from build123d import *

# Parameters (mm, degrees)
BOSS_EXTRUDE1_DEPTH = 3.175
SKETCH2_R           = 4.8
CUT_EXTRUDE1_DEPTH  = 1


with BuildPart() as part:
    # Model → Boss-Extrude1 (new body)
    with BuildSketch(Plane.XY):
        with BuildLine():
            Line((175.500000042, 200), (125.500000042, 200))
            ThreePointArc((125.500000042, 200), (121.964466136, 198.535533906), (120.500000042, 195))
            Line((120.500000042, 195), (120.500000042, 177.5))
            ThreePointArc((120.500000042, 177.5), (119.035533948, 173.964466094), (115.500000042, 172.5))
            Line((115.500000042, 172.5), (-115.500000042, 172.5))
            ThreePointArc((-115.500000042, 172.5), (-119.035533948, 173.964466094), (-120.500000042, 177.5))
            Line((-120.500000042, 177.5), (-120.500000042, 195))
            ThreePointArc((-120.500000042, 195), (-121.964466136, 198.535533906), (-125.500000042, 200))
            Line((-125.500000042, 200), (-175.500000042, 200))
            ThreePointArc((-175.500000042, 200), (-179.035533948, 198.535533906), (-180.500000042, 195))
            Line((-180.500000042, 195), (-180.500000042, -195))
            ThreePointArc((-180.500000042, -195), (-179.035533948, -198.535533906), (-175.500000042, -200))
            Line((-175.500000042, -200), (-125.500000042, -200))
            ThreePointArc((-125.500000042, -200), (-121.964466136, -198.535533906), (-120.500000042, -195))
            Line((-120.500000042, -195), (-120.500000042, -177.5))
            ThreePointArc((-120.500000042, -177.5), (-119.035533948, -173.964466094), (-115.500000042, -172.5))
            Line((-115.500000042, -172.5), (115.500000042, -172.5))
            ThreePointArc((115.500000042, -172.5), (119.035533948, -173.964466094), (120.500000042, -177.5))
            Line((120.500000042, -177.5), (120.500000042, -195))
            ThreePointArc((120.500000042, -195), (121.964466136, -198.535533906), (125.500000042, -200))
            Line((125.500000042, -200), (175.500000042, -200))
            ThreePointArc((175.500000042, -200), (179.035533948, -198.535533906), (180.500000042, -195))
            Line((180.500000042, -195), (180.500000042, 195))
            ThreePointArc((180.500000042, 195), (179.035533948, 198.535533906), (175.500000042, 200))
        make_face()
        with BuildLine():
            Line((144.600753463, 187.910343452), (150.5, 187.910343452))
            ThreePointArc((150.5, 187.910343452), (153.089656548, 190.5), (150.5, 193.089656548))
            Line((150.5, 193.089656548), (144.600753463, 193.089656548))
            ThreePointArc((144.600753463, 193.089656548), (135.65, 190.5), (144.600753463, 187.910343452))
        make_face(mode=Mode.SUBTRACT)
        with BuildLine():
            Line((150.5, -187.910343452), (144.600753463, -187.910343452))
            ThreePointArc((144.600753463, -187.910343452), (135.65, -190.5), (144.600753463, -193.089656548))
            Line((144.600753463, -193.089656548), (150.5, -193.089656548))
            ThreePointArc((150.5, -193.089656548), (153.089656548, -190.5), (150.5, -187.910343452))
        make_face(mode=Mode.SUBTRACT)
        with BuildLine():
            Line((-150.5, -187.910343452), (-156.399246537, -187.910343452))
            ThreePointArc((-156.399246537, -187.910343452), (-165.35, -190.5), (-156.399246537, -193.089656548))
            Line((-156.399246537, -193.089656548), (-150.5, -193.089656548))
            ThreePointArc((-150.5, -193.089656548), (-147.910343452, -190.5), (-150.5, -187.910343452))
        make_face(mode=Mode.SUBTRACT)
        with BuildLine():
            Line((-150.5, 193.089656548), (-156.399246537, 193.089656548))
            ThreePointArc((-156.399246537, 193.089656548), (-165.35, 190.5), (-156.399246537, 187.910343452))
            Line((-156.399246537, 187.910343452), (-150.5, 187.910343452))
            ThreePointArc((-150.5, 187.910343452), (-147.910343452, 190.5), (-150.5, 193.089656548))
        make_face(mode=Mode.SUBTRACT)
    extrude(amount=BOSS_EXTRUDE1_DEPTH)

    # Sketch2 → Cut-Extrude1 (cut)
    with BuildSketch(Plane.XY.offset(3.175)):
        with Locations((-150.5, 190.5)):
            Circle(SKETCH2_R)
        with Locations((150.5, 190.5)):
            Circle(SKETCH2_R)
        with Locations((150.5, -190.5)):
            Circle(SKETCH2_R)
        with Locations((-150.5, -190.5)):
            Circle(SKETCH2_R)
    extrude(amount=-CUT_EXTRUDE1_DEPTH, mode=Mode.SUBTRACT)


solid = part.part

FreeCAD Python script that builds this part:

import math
import FreeCAD as App
import Part
import Sketcher

V = App.Vector
Q = App.Units.Quantity

doc = App.newDocument("Part")
body = doc.addObject("PartDesign::Body", "Body")

# Sketch on XY plane
sketch1 = body.newObject("Sketcher::SketchObject", "Sketch")
sketch1.AttachmentSupport = (doc.getObject("XY_Plane"), [""])
sketch1.MapMode = "FlatFace"
sketch1.addGeometry(Part.LineSegment(V(175.5, 200, 0), V(125.5, 200, 0)), False)
sketch1.addGeometry(Part.ArcOfCircle(Part.Circle(V(125.5, 195, 0), V(0, 0, 1), 5), math.radians(90), math.radians(180)), False)
sketch1.addGeometry(Part.LineSegment(V(120.5, 195, 0), V(120.5, 177.5, 0)), False)
sketch1.addGeometry(Part.ArcOfCircle(Part.Circle(V(115.5, 177.5, 0), V(0, 0, 1), 5), math.radians(-90), math.radians(0)), False)
sketch1.addGeometry(Part.LineSegment(V(115.5, 172.5, 0), V(-115.5, 172.5, 0)), False)
sketch1.addGeometry(Part.ArcOfCircle(Part.Circle(V(-115.5, 177.5, 0), V(0, 0, 1), 5), math.radians(180), math.radians(270)), False)
sketch1.addGeometry(Part.LineSegment(V(-120.5, 177.5, 0), V(-120.5, 195, 0)), False)
sketch1.addGeometry(Part.ArcOfCircle(Part.Circle(V(-125.5, 195, 0), V(0, 0, 1), 5), math.radians(0), math.radians(90)), False)
sketch1.addGeometry(Part.LineSegment(V(-125.5, 200, 0), V(-175.5, 200, 0)), False)
sketch1.addGeometry(Part.ArcOfCircle(Part.Circle(V(-175.5, 195, 0), V(0, 0, 1), 5), math.radians(90), math.radians(180)), False)
sketch1.addGeometry(Part.LineSegment(V(-180.5, 195, 0), V(-180.5, -195, 0)), False)
sketch1.addGeometry(Part.ArcOfCircle(Part.Circle(V(-175.5, -195, 0), V(0, 0, 1), 5), math.radians(180), math.radians(270)), False)
sketch1.addGeometry(Part.LineSegment(V(-175.5, -200, 0), V(-125.5, -200, 0)), False)
sketch1.addGeometry(Part.ArcOfCircle(Part.Circle(V(-125.5, -195, 0), V(0, 0, 1), 5), math.radians(-90), math.radians(0)), False)
sketch1.addGeometry(Part.LineSegment(V(-120.5, -195, 0), V(-120.5, -177.5, 0)), False)
sketch1.addGeometry(Part.ArcOfCircle(Part.Circle(V(-115.5, -177.5, 0), V(0, 0, 1), 5), math.radians(90), math.radians(180)), False)
sketch1.addGeometry(Part.LineSegment(V(-115.5, -172.5, 0), V(115.5, -172.5, 0)), False)
sketch1.addGeometry(Part.ArcOfCircle(Part.Circle(V(115.5, -177.5, 0), V(0, 0, 1), 5), math.radians(0), math.radians(90)), False)
sketch1.addGeometry(Part.LineSegment(V(120.5, -177.5, 0), V(120.5, -195, 0)), False)
sketch1.addGeometry(Part.ArcOfCircle(Part.Circle(V(125.5, -195, 0), V(0, 0, 1), 5), math.radians(180), math.radians(270)), False)
sketch1.addGeometry(Part.LineSegment(V(125.5, -200, 0), V(175.5, -200, 0)), False)
sketch1.addGeometry(Part.ArcOfCircle(Part.Circle(V(175.5, -195, 0), V(0, 0, 1), 5), math.radians(-90), math.radians(0)), False)
sketch1.addGeometry(Part.LineSegment(V(180.5, -195, 0), V(180.5, 195, 0)), False)
sketch1.addGeometry(Part.ArcOfCircle(Part.Circle(V(175.5, 195, 0), V(0, 0, 1), 5), math.radians(0), math.radians(90)), False)
sketch1.addGeometry(Part.LineSegment(V(-156.4, -187.9, 0), V(-150.5, -187.9, 0)), False)
sketch1.addGeometry(Part.ArcOfCircle(Part.Circle(V(-150.5, -190.5, 0), V(0, 0, 1), 2.6), math.radians(-90), math.radians(90)), False)
sketch1.addGeometry(Part.LineSegment(V(-150.5, -193.1, 0), V(-156.4, -193.1, 0)), False)
sketch1.addGeometry(Part.ArcOfCircle(Part.Circle(V(-160.5, -190.5, 0), V(0, 0, 1), 4.8), math.radians(32), math.radians(328)), False)
sketch1.addGeometry(Part.LineSegment(V(144.6, -187.9, 0), V(150.5, -187.9, 0)), False)
sketch1.addGeometry(Part.ArcOfCircle(Part.Circle(V(150.5, -190.5, 0), V(0, 0, 1), 2.6), math.radians(-90), math.radians(90)), False)
sketch1.addGeometry(Part.LineSegment(V(150.5, -193.1, 0), V(144.6, -193.1, 0)), False)
sketch1.addGeometry(Part.ArcOfCircle(Part.Circle(V(140.5, -190.5, 0), V(0, 0, 1), 4.8), math.radians(32), math.radians(328)), False)
sketch1.addGeometry(Part.LineSegment(V(-156.4, 193.1, 0), V(-150.5, 193.1, 0)), False)
sketch1.addGeometry(Part.ArcOfCircle(Part.Circle(V(-150.5, 190.5, 0), V(0, 0, 1), 2.6), math.radians(-90), math.radians(90)), False)
sketch1.addGeometry(Part.LineSegment(V(-150.5, 187.9, 0), V(-156.4, 187.9, 0)), False)
sketch1.addGeometry(Part.ArcOfCircle(Part.Circle(V(-160.5, 190.5, 0), V(0, 0, 1), 4.8), math.radians(32), math.radians(328)), False)
sketch1.addGeometry(Part.LineSegment(V(150.5, 187.9, 0), V(144.6, 187.9, 0)), False)
sketch1.addGeometry(Part.ArcOfCircle(Part.Circle(V(140.5, 190.5, 0), V(0, 0, 1), 4.8), math.radians(32), math.radians(328)), False)
sketch1.addGeometry(Part.LineSegment(V(144.6, 193.1, 0), V(150.5, 193.1, 0)), False)
sketch1.addGeometry(Part.ArcOfCircle(Part.Circle(V(150.5, 190.5, 0), V(0, 0, 1), 2.6), math.radians(-90), math.radians(90)), False)
sketch1.addConstraint(Sketcher.Constraint("Tangent", 0, 2, 1, 1))
sketch1.addConstraint(Sketcher.Constraint("Tangent", 1, 2, 2, 1))
sketch1.addConstraint(Sketcher.Constraint("Tangent", 2, 2, 3, 2))
sketch1.addConstraint(Sketcher.Constraint("Tangent", 3, 1, 4, 1))
sketch1.addConstraint(Sketcher.Constraint("Tangent", 4, 2, 5, 2))
sketch1.addConstraint(Sketcher.Constraint("Tangent", 5, 1, 6, 1))
sketch1.addConstraint(Sketcher.Constraint("Tangent", 6, 2, 7, 1))
sketch1.addConstraint(Sketcher.Constraint("Tangent", 7, 2, 8, 1))
sketch1.addConstraint(Sketcher.Constraint("Tangent", 8, 2, 9, 1))
sketch1.addConstraint(Sketcher.Constraint("Tangent", 9, 2, 10, 1))
sketch1.addConstraint(Sketcher.Constraint("Tangent", 10, 2, 11, 1))
sketch1.addConstraint(Sketcher.Constraint("Tangent", 11, 2, 12, 1))
sketch1.addConstraint(Sketcher.Constraint("Tangent", 12, 2, 13, 1))
sketch1.addConstraint(Sketcher.Constraint("Tangent", 13, 2, 14, 1))
sketch1.addConstraint(Sketcher.Constraint("Tangent", 14, 2, 15, 2))
sketch1.addConstraint(Sketcher.Constraint("Tangent", 15, 1, 16, 1))
sketch1.addConstraint(Sketcher.Constraint("Tangent", 16, 2, 17, 2))
sketch1.addConstraint(Sketcher.Constraint("Tangent", 17, 1, 18, 1))
sketch1.addConstraint(Sketcher.Constraint("Tangent", 18, 2, 19, 1))
sketch1.addConstraint(Sketcher.Constraint("Tangent", 19, 2, 20, 1))
sketch1.addConstraint(Sketcher.Constraint("Tangent", 20, 2, 21, 1))
sketch1.addConstraint(Sketcher.Constraint("Tangent", 21, 2, 22, 1))
sketch1.addConstraint(Sketcher.Constraint("Tangent", 22, 2, 23, 1))
sketch1.addConstraint(Sketcher.Constraint("Tangent", 23, 2, 0, 1))
sketch1.addConstraint(Sketcher.Constraint("Tangent", 24, 2, 25, 2))
sketch1.addConstraint(Sketcher.Constraint("Tangent", 25, 1, 26, 1))
sketch1.addConstraint(Sketcher.Constraint("Coincident", 26, 2, 27, 2))
sketch1.addConstraint(Sketcher.Constraint("Coincident", 27, 1, 24, 1))
sketch1.addConstraint(Sketcher.Constraint("Tangent", 28, 2, 29, 2))
sketch1.addConstraint(Sketcher.Constraint("Tangent", 29, 1, 30, 1))
sketch1.addConstraint(Sketcher.Constraint("Coincident", 30, 2, 31, 2))
sketch1.addConstraint(Sketcher.Constraint("Coincident", 31, 1, 28, 1))
sketch1.addConstraint(Sketcher.Constraint("Tangent", 32, 2, 33, 2))
sketch1.addConstraint(Sketcher.Constraint("Tangent", 33, 1, 34, 1))
sketch1.addConstraint(Sketcher.Constraint("Coincident", 34, 2, 35, 2))
sketch1.addConstraint(Sketcher.Constraint("Coincident", 35, 1, 32, 1))
sketch1.addConstraint(Sketcher.Constraint("Coincident", 36, 2, 37, 2))
sketch1.addConstraint(Sketcher.Constraint("Coincident", 37, 1, 38, 1))
sketch1.addConstraint(Sketcher.Constraint("Tangent", 38, 2, 39, 2))
sketch1.addConstraint(Sketcher.Constraint("Tangent", 39, 1, 36, 1))
sketch1.addConstraint(Sketcher.Constraint("Horizontal", 0))
sketch1.addConstraint(Sketcher.Constraint("Vertical", 2))
sketch1.addConstraint(Sketcher.Constraint("Horizontal", 4))
sketch1.addConstraint(Sketcher.Constraint("Vertical", 6))
sketch1.addConstraint(Sketcher.Constraint("Horizontal", 8))
sketch1.addConstraint(Sketcher.Constraint("Vertical", 10))
sketch1.addConstraint(Sketcher.Constraint("Horizontal", 12))
sketch1.addConstraint(Sketcher.Constraint("Vertical", 14))
sketch1.addConstraint(Sketcher.Constraint("Horizontal", 16))
sketch1.addConstraint(Sketcher.Constraint("Vertical", 18))
sketch1.addConstraint(Sketcher.Constraint("Horizontal", 20))
sketch1.addConstraint(Sketcher.Constraint("Vertical", 22))
sketch1.addConstraint(Sketcher.Constraint("Horizontal", 24))
sketch1.addConstraint(Sketcher.Constraint("Horizontal", 26))
sketch1.addConstraint(Sketcher.Constraint("Horizontal", 28))
sketch1.addConstraint(Sketcher.Constraint("Horizontal", 30))
sketch1.addConstraint(Sketcher.Constraint("Horizontal", 32))
sketch1.addConstraint(Sketcher.Constraint("Horizontal", 34))
sketch1.addConstraint(Sketcher.Constraint("Horizontal", 36))
sketch1.addConstraint(Sketcher.Constraint("Horizontal", 38))
sketch1.addConstraint(Sketcher.Constraint("Equal", 1, 3))
sketch1.addConstraint(Sketcher.Constraint("Equal", 3, 5))
sketch1.addConstraint(Sketcher.Constraint("Equal", 5, 7))
sketch1.addConstraint(Sketcher.Constraint("Equal", 7, 9))
sketch1.addConstraint(Sketcher.Constraint("Equal", 9, 11))
sketch1.addConstraint(Sketcher.Constraint("Equal", 11, 13))
sketch1.addConstraint(Sketcher.Constraint("Equal", 13, 15))
sketch1.addConstraint(Sketcher.Constraint("Equal", 15, 17))
sketch1.addConstraint(Sketcher.Constraint("Equal", 17, 19))
sketch1.addConstraint(Sketcher.Constraint("Equal", 19, 21))
sketch1.addConstraint(Sketcher.Constraint("Equal", 21, 23))
sketch1.addConstraint(Sketcher.Constraint("Equal", 25, 29))
sketch1.addConstraint(Sketcher.Constraint("Equal", 27, 31))
sketch1.addConstraint(Sketcher.Constraint("Equal", 29, 33))
sketch1.addConstraint(Sketcher.Constraint("Equal", 31, 35))
sketch1.addConstraint(Sketcher.Constraint("Equal", 35, 37))
sketch1.addConstraint(Sketcher.Constraint("Equal", 33, 39))
sketch1.addConstraint(Sketcher.Constraint("Symmetric", 1, 3, 13, 3, -1, 1))
sketch1.addConstraint(Sketcher.Constraint("Symmetric", 5, 3, 17, 3, -1, 1))
sketch1.addConstraint(Sketcher.Constraint("Symmetric", 9, 3, 21, 3, -1, 1))
sketch1.addConstraint(Sketcher.Constraint("Symmetric", 29, 3, 33, 3, -1, 1))
sketch1.addConstraint(Sketcher.Constraint("Symmetric", 25, 3, 39, 3, -1, 1))
sketch1.addConstraint(Sketcher.Constraint("Symmetric", 1, 3, 7, 3, -2))
sketch1.addConstraint(Sketcher.Constraint("Symmetric", 25, 3, 29, 3, -2))
sketch1.addConstraint(Sketcher.Constraint("Symmetric", 27, 3, 35, 3, -1))
sketch1.addConstraint(Sketcher.Constraint("Symmetric", 31, 3, 37, 3, -1))
sketch1.addConstraint(Sketcher.Constraint("Horizontal", 25, 3, 27, 3))
sketch1.addConstraint(Sketcher.Constraint("Horizontal", 29, 3, 31, 3))
sketch1.addConstraint(Sketcher.Constraint("Equal", 26, 28))
sketch1.addConstraint(Sketcher.Constraint("Radius", 1, Q("5 mm")))
sketch1.addConstraint(Sketcher.Constraint("DistanceX", 0, 2, 0, 1, Q("50 mm")))
sketch1.addConstraint(Sketcher.Constraint("DistanceX", 4, 2, 4, 1, Q("231 mm")))
sketch1.addConstraint(Sketcher.Constraint("DistanceY", 10, 2, 10, 1, Q("390 mm")))
sketch1.addConstraint(Sketcher.Constraint("Radius", 27, Q("4.85 mm")))
sketch1.addConstraint(Sketcher.Constraint("DistanceY", 2, 2, 2, 1, Q("17.5 mm")))
sketch1.addConstraint(Sketcher.Constraint("DistanceX", 25, 3, 13, 3, Q("25 mm")))
sketch1.addConstraint(Sketcher.Constraint("DistanceY", 25, 3, 15, 3, Q("13 mm")))
sketch1.addConstraint(Sketcher.Constraint("DistanceX", 27, 3, 25, 3, Q("10 mm")))
sketch1.addConstraint(Sketcher.Constraint("Radius", 25, Q("2.589657 mm")))
pad1 = body.newObject("PartDesign::Pad", "Pad")
pad1.Profile = sketch1
pad1.Length = 3.175

# Sketch on XY plane
sketch2 = body.newObject("Sketcher::SketchObject", "Sketch001")
sketch2.AttachmentSupport = (doc.getObject("XY_Plane"), [""])
sketch2.MapMode = "FlatFace"
sketch2.AttachmentOffset = App.Placement(V(0, 0, 3.175), App.Rotation())
sketch2.addGeometry(Part.Circle(V(-150.5, 190.5, 0), V(0, 0, 1), 4.8), False)
sketch2.addGeometry(Part.Circle(V(150.5, 190.5, 0), V(0, 0, 1), 4.8), False)
sketch2.addGeometry(Part.Circle(V(150.5, -190.5, 0), V(0, 0, 1), 4.8), False)
sketch2.addGeometry(Part.Circle(V(-150.5, -190.5, 0), V(0, 0, 1), 4.8), False)
sketch2.addConstraint(Sketcher.Constraint("Equal", 0, 1))
sketch2.addConstraint(Sketcher.Constraint("Equal", 1, 2))
sketch2.addConstraint(Sketcher.Constraint("Equal", 2, 3))
sketch2.addConstraint(Sketcher.Constraint("Symmetric", 0, 3, 2, 3, -1, 1))
sketch2.addConstraint(Sketcher.Constraint("Symmetric", 1, 3, 3, 3, -1, 1))
sketch2.addConstraint(Sketcher.Constraint("Symmetric", 0, 3, 1, 3, -2))
sketch2.addConstraint(Sketcher.Constraint("Diameter", 0, Q("9.6 mm")))
sketch2.addConstraint(Sketcher.Constraint("DistanceX", 0, 3, 1, 3, Q("301 mm")))
sketch2.addConstraint(Sketcher.Constraint("DistanceY", 2, 3, 1, 3, Q("381 mm")))
pocket1 = body.newObject("PartDesign::Pocket", "Pocket")
pocket1.Profile = sketch2
pocket1.Length = 1

doc.recompute()
